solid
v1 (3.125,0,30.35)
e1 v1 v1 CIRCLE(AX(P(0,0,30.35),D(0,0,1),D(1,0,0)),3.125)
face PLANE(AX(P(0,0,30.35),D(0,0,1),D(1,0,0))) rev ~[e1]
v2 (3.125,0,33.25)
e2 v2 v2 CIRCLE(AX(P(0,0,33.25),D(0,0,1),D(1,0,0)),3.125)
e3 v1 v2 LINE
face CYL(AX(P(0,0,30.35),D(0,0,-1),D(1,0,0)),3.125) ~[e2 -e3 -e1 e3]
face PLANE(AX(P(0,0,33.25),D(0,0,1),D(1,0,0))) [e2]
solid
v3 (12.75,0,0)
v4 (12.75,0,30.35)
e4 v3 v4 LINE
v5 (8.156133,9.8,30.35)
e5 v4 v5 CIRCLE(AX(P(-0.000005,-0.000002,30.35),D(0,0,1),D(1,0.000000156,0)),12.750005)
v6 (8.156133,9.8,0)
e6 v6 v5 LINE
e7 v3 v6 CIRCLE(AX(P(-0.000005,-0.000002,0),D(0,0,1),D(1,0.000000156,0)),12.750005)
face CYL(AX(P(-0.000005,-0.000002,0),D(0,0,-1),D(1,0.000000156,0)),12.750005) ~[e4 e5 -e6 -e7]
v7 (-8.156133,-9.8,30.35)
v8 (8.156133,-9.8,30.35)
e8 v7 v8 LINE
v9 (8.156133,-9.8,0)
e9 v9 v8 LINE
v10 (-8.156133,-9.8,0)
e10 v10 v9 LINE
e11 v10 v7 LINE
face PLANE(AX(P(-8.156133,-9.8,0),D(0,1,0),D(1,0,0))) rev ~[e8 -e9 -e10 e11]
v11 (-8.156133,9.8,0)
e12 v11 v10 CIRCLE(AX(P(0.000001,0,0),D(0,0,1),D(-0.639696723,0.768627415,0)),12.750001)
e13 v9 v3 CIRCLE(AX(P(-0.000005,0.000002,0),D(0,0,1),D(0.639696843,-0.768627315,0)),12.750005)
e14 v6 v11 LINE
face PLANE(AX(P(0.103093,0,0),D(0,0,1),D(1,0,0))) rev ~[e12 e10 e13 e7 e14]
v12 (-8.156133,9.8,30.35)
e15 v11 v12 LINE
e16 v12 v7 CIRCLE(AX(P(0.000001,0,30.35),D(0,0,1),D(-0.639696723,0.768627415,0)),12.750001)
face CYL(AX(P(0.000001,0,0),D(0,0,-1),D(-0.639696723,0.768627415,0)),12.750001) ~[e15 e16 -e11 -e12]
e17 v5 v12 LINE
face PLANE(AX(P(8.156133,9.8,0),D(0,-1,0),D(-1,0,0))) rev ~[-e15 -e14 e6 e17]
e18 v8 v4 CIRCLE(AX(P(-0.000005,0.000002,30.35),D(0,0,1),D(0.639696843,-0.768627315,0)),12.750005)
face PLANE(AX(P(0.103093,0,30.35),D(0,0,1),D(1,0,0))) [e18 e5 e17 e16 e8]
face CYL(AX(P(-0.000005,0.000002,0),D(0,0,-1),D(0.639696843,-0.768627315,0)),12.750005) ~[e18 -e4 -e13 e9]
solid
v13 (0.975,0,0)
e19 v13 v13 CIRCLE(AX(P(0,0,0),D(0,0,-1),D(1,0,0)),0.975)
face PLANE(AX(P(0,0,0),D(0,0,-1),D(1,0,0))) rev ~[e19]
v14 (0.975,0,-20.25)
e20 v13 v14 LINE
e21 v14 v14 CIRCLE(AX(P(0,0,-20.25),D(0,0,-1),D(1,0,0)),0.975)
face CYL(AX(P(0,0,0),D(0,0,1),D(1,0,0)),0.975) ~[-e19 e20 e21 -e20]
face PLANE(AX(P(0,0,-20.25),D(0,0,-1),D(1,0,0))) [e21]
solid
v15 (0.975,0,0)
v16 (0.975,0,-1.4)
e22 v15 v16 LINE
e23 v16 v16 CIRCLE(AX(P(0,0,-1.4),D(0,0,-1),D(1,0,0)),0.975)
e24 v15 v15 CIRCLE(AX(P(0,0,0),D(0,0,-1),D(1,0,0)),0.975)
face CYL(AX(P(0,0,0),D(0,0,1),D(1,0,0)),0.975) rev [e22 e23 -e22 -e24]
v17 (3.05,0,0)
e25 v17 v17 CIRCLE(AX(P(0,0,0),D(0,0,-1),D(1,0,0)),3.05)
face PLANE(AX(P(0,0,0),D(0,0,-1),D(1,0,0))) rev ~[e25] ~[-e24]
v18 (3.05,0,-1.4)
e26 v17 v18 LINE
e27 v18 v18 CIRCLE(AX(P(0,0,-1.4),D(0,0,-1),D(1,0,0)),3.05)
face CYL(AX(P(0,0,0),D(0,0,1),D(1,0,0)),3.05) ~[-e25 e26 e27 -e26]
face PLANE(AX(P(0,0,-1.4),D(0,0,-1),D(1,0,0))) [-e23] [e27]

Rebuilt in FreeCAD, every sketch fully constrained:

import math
import FreeCAD as App
import Part
import Sketcher
from FreeCAD import Vector

doc = App.newDocument("Part")
params = doc.addObject("Spreadsheet::Sheet", "Params")
for row, (alias, value) in enumerate([
    ("sketch1_radius", "12.750001 mm"),
    ("pad1_length", "30.35 mm"),
    ("sketch2_diameter", "6.1 mm"),
    ("sketch2_diameter2", "1.95 mm"),
    ("pad2_length", "1.4 mm"),
    ("sketch3_diameter", "6.25 mm"),
    ("pad3_length", "2.9 mm"),
    ("sketch4_diameter", "1.95 mm"),
    ("pad4_length", "20.25 mm"),
], start=1):
    params.set(f"A{row}", alias)
    params.set(f"B{row}", "=" + value)
    params.setAlias(f"B{row}", alias)

body = doc.addObject("PartDesign::Body", "Body")

# Sketch on XY plane
sketch1 = doc.addObject("Sketcher::SketchObject", "Sketch")
body.addObject(sketch1)
sketch1.AttachmentSupport = (doc.XY_Plane, [""])
sketch1.MapMode = "FlatFace"
sketch1.addGeometry([
    Part.ArcOfCircle(Part.Circle(Vector(-0.000005, 0.000002, 0), Vector(0, 0, 1), 12.750005), math.radians(-50.230782), math.radians(-0.000009)),  # 0
    Part.ArcOfCircle(Part.Circle(Vector(-0.000005, -0.000002, 0), Vector(0, 0, 1), 12.750005), math.radians(0.000009), math.radians(50.230782)),  # 1
    Part.LineSegment(Vector(8.156133, 9.8, 0), Vector(-8.156133, 9.8, 0)),  # 2
    Part.ArcOfCircle(Part.Circle(Vector(0.000001, 0, 0), Vector(0, 0, 1), 12.750001), math.radians(129.769209), math.radians(230.230791)),  # 3
    Part.LineSegment(Vector(-8.156133, -9.8, 0), Vector(8.156133, -9.8, 0)),  # 4
], False)
sketch1.addConstraint([
    Sketcher.Constraint("Tangent", 0, 2, 1, 1),
    Sketcher.Constraint("Coincident", 1, 2, 2, 1),
    Sketcher.Constraint("Coincident", 2, 2, 3, 1),
    Sketcher.Constraint("Coincident", 3, 2, 4, 1),
    Sketcher.Constraint("Coincident", 4, 2, 0, 1),
    Sketcher.Constraint("Horizontal", 2),
    Sketcher.Constraint("Horizontal", 4),
    Sketcher.Constraint("Coincident", 0, 3, -1, 1),
    Sketcher.Constraint("Coincident", 3, 3, -1, 1),
    Sketcher.Constraint("Equal", 0, 1),
    Sketcher.Constraint("Symmetric", 1, 2, 3, 2, -1, 1),
    Sketcher.Constraint("PointOnObject", 0, 2, -1),
    Sketcher.Constraint("Radius", 3, 12.750001),
    Sketcher.Constraint("DistanceY", -1, 1, 1, 2, 9.8),
])
sketch1.setExpression("Constraints[12]", "Params.sketch1_radius")
pad1 = doc.addObject("PartDesign::Pad", "Pad")
body.addObject(pad1)
pad1.Profile = sketch1
pad1.setExpression("Length", "Params.pad1_length")
body2 = doc.addObject("PartDesign::Body", "Body001")

# Sketch on XY plane
sketch2 = doc.addObject("Sketcher::SketchObject", "Sketch001")
body2.addObject(sketch2)
sketch2.AttachmentSupport = (doc.getObject("XY_Plane001"), [""])
sketch2.MapMode = "FlatFace"
sketch2.addGeometry([
    Part.Circle(Vector(0, 0, 0), Vector(0, 0, 1), 3.05),
    Part.Circle(Vector(0, 0, 0), Vector(0, 0, 1), 0.975),
], False)
sketch2.addConstraint([
    Sketcher.Constraint("Coincident", 0, 3, -1, 1),
    Sketcher.Constraint("Coincident", 1, 3, -1, 1),
    Sketcher.Constraint("Diameter", 0, 6.1),
    Sketcher.Constraint("Diameter", 1, 1.95),
])
sketch2.setExpression("Constraints[2]", "Params.sketch2_diameter")
sketch2.setExpression("Constraints[3]", "Params.sketch2_diameter2")
pad2 = doc.addObject("PartDesign::Pad", "Pad001")
body2.addObject(pad2)
pad2.Profile = sketch2
pad2.setExpression("Length", "Params.pad2_length")
pad2.Reversed = True
body3 = doc.addObject("PartDesign::Body", "Body002")

# Sketch on XY plane
sketch3 = doc.addObject("Sketcher::SketchObject", "Sketch002")
body3.addObject(sketch3)
sketch3.AttachmentSupport = (doc.getObject("XY_Plane002"), [""])
sketch3.MapMode = "FlatFace"
sketch3.AttachmentOffset = App.Placement(Vector(0, 0, 30.35), App.Rotation())
sketch3.addGeometry(Part.Circle(Vector(0, 0, 0), Vector(0, 0, 1), 3.125), False)
sketch3.addConstraint([
    Sketcher.Constraint("Coincident", 0, 3, -1, 1),
    Sketcher.Constraint("Diameter", 0, 6.25),
])
sketch3.setExpression("Constraints[1]", "Params.sketch3_diameter")
pad3 = doc.addObject("PartDesign::Pad", "Pad002")
body3.addObject(pad3)
pad3.Profile = sketch3
pad3.setExpression("Length", "Params.pad3_length")
body4 = doc.addObject("PartDesign::Body", "Body003")

# Sketch on XY plane
sketch4 = doc.addObject("Sketcher::SketchObject", "Sketch003")
body4.addObject(sketch4)
sketch4.AttachmentSupport = (doc.getObject("XY_Plane003"), [""])
sketch4.MapMode = "FlatFace"
sketch4.addGeometry(Part.Circle(Vector(0, 0, 0), Vector(0, 0, 1), 0.975), False)
sketch4.addConstraint([
    Sketcher.Constraint("Coincident", 0, 3, -1, 1),
    Sketcher.Constraint("Diameter", 0, 1.95),
])
sketch4.setExpression("Constraints[1]", "Params.sketch4_diameter")
pad4 = doc.addObject("PartDesign::Pad", "Pad003")
body4.addObject(pad4)
pad4.Profile = sketch4
pad4.setExpression("Length", "Params.pad4_length")
pad4.Reversed = True

doc.recompute()
